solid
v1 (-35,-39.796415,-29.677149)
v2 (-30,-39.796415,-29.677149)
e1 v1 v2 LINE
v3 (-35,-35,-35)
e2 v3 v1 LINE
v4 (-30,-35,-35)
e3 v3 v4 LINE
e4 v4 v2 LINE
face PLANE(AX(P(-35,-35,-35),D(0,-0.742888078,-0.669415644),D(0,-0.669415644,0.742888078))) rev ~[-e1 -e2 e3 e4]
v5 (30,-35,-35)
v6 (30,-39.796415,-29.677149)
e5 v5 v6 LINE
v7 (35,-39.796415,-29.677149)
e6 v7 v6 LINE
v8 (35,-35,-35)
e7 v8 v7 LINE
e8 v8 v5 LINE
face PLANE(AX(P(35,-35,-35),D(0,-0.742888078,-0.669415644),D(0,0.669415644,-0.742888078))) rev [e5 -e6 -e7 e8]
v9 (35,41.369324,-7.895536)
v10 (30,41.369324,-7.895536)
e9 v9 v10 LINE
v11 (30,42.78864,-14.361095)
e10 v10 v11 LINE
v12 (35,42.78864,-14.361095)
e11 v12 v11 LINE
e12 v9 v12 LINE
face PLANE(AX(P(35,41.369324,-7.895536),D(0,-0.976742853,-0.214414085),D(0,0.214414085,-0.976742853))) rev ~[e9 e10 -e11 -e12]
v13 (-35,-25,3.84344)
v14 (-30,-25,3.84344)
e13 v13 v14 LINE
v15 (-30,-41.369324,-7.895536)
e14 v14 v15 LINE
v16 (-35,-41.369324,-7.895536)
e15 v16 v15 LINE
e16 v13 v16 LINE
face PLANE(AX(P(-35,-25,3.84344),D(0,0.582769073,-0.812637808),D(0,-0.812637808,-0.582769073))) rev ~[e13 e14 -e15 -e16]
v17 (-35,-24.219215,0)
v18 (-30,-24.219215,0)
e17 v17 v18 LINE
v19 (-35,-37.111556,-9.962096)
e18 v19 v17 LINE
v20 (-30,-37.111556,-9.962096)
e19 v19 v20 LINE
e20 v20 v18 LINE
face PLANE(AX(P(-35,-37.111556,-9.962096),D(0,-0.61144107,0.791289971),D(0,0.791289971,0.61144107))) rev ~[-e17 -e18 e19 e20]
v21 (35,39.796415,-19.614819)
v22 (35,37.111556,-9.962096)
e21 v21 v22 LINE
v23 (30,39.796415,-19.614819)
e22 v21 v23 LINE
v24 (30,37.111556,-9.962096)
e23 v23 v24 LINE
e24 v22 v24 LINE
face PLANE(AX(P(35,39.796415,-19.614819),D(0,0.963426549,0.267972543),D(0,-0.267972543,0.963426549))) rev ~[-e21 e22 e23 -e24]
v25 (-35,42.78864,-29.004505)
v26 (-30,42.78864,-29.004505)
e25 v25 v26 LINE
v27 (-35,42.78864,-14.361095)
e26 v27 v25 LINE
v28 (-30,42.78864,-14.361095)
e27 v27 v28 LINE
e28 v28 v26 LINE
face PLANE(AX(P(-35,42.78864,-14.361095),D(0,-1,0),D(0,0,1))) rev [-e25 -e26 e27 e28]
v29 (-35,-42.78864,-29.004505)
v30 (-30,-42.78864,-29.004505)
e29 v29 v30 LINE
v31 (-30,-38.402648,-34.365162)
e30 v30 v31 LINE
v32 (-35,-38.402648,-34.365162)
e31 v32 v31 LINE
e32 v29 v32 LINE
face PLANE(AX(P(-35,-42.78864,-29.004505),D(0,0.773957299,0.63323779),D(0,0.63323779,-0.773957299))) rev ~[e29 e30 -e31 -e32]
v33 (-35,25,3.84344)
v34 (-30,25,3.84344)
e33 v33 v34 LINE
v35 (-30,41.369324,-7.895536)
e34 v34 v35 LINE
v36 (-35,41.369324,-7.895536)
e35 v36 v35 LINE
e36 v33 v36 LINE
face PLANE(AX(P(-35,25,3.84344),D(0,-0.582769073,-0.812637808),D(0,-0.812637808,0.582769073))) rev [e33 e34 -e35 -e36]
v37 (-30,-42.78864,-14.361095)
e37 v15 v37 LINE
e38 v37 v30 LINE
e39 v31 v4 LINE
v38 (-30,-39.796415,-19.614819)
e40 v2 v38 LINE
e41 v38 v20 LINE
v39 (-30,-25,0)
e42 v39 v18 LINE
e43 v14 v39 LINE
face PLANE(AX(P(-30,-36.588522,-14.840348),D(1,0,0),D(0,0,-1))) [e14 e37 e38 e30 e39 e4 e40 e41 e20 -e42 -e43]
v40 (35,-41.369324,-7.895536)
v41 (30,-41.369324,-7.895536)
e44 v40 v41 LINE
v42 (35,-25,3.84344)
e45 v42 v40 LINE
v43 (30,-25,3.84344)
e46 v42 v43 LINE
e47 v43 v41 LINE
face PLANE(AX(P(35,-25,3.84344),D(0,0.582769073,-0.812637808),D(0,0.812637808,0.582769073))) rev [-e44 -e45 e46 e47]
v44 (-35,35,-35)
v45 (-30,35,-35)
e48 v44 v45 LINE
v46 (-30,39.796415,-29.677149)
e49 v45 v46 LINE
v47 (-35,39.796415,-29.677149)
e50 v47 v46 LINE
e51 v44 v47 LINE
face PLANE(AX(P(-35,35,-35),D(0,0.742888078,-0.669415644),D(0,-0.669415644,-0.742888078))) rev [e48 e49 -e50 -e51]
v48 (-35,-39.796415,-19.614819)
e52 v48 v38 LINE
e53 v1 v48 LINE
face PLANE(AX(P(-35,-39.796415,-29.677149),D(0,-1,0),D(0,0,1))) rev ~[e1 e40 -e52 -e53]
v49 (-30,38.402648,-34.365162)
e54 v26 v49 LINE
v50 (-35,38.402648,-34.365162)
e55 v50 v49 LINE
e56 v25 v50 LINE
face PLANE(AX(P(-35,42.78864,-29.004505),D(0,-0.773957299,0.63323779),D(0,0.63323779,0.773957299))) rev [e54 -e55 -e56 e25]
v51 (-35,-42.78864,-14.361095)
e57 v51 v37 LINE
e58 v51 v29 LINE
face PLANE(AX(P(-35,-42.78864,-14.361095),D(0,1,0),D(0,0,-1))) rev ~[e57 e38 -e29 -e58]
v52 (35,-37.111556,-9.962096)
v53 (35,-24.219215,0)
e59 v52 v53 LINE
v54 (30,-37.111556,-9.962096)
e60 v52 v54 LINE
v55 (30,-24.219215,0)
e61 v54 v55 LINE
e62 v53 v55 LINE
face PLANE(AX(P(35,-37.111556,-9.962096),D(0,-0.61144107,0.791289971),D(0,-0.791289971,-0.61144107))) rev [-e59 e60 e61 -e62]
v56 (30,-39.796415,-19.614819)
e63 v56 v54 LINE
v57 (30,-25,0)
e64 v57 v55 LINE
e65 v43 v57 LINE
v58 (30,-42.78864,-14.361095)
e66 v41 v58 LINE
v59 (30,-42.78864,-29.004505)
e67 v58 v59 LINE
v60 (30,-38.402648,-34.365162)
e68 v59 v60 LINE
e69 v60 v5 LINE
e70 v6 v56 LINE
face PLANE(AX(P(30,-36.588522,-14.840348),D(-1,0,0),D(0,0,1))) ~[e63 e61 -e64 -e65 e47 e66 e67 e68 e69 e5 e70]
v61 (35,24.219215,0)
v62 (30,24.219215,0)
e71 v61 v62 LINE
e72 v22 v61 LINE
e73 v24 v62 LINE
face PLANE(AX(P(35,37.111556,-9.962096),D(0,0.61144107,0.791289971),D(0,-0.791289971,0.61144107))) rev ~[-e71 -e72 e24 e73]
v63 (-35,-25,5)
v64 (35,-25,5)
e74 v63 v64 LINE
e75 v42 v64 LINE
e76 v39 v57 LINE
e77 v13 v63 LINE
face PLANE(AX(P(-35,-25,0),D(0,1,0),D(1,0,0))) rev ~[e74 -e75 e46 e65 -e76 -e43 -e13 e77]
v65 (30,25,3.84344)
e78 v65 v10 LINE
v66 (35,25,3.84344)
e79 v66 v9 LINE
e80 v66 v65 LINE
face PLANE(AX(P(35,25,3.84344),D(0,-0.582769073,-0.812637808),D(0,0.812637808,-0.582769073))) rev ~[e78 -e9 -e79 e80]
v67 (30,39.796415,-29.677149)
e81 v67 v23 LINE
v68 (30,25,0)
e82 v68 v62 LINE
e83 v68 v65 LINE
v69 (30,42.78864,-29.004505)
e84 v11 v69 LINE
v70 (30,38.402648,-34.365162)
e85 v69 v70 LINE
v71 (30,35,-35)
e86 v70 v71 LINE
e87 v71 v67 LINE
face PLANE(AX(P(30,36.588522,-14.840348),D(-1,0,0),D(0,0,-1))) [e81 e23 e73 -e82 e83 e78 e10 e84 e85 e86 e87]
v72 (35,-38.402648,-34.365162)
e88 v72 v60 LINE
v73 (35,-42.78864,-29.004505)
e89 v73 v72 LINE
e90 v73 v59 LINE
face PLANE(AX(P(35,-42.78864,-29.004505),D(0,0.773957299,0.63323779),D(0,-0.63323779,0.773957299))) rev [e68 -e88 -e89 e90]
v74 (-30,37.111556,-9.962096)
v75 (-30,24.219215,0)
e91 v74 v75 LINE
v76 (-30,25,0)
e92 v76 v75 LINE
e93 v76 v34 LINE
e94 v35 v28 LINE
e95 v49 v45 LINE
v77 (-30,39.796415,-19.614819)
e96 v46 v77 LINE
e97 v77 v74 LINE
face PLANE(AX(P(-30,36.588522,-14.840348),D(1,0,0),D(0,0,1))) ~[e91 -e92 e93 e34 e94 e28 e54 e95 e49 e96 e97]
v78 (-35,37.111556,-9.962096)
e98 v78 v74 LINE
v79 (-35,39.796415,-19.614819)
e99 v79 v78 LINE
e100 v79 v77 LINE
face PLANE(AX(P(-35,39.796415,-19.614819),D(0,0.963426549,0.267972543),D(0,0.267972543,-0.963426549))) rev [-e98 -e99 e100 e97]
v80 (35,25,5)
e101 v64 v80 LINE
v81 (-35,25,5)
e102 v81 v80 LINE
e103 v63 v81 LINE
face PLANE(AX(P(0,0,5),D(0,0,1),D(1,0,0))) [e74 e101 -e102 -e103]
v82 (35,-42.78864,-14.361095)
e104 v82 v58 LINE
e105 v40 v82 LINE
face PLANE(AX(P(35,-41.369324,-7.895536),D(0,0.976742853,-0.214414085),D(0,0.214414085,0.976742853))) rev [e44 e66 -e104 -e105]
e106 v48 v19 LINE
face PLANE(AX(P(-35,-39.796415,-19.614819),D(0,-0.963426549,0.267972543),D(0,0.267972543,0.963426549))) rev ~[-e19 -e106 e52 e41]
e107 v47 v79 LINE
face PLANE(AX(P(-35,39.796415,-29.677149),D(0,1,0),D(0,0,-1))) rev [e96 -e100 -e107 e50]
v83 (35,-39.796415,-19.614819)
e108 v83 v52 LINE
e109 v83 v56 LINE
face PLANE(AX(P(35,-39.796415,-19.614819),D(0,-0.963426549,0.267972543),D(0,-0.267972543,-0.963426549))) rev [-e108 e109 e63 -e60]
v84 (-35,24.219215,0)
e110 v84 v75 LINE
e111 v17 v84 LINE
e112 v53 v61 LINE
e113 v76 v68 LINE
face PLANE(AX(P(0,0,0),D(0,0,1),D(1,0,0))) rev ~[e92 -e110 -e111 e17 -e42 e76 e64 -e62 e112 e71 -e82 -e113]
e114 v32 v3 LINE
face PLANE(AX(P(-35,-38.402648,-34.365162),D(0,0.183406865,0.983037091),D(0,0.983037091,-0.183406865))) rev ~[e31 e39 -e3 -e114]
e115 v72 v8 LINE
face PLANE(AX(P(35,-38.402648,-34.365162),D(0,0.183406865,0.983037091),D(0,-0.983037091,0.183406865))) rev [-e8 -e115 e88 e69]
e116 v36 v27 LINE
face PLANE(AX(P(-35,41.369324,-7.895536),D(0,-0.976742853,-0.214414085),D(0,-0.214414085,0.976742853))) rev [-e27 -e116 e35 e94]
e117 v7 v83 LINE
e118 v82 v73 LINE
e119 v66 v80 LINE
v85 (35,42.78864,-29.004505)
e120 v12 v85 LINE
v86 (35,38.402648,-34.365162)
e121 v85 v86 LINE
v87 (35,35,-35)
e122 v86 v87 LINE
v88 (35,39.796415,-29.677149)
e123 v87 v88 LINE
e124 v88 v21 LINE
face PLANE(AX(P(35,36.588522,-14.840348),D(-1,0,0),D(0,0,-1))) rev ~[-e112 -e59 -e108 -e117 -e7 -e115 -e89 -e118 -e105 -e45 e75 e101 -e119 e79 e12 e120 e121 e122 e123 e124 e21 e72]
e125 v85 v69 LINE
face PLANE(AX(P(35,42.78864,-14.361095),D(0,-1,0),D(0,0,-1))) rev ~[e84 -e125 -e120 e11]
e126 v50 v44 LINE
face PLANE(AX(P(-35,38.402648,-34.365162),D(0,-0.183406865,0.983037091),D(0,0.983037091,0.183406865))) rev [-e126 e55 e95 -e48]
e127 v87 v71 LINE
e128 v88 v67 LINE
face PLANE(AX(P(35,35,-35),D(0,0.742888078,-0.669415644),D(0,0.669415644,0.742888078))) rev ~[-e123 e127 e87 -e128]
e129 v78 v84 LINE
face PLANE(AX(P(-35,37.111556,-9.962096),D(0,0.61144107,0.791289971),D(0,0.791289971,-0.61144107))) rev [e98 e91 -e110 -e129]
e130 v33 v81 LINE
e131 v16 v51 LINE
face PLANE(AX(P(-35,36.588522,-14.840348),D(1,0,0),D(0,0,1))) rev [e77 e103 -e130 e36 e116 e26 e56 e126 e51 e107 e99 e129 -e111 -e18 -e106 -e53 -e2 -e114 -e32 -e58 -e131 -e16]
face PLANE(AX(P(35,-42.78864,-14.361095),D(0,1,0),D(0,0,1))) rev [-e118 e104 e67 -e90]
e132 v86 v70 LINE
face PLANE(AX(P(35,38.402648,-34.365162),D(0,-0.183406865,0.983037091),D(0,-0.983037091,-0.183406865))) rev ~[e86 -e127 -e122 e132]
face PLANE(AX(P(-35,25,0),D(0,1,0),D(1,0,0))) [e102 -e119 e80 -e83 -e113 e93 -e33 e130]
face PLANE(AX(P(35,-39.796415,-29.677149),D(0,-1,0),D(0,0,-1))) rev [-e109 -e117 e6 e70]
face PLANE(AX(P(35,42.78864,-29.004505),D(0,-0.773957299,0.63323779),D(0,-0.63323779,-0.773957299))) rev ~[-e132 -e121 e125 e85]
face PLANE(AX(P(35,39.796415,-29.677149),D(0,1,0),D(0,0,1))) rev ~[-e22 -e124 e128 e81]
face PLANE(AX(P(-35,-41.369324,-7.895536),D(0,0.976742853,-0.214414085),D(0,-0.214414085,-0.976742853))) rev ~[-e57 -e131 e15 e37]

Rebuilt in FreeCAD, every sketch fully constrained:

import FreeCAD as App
import Part
import Sketcher

V = App.Vector
Q = App.Units.Quantity


def add_polygon(sketch, points):
    """Adds a closed chain of lines whose ends are joined by coincident constraints."""
    first, n = sketch.GeometryCount, len(points)
    for a, b in zip(points, points[1:] + points[:1]):
        sketch.addGeometry(Part.LineSegment(App.Vector(*a, 0), App.Vector(*b, 0)), False)
    for i in range(n):
        sketch.addConstraint(Sketcher.Constraint("Coincident", first + i, 2, first + (i + 1) % n, 1))

doc = App.newDocument("Part")
body = doc.addObject("PartDesign::Body", "Body")

sketch1 = body.newObject("Sketcher::SketchObject", "Sketch")
sketch1.AttachmentSupport = (doc.getObject("XY_Plane"), [""])
sketch1.MapMode = "FlatFace"
add_polygon(sketch1, [(-35, 25), (-35, -25), (35, -25), (35, 25)])
sketch1.addConstraint([
    Sketcher.Constraint("Vertical", 0),
    Sketcher.Constraint("Horizontal", 1),
    Sketcher.Constraint("Vertical", 2),
    Sketcher.Constraint("Horizontal", 3),
    Sketcher.Constraint("Symmetric", 0, 2, 2, 2, -1, 1),
    Sketcher.Constraint("DistanceX", 1, 1, 1, 2, Q("70 mm")),
    Sketcher.Constraint("DistanceY", 0, 2, 0, 1, Q("50 mm")),
])
pad1 = body.newObject("PartDesign::Pad", "Pad")
pad1.Profile = sketch1
pad1.Length = 5

sketch2 = body.newObject("Sketcher::SketchObject", "Sketch001")
sketch2.AttachmentSupport = (doc.getObject("YZ_Plane"), [""])
sketch2.MapMode = "FlatFace"
sketch2.AttachmentOffset = App.Placement(V(0, 0, -35), App.Rotation())
add_polygon(sketch2, [(-41.4, -7.9), (-25, 3.8), (-24.2, 0), (-37.1, -10), (-39.8, -19.6), (-39.8, -29.7), (-35, -35), (-38.4, -34.4), (-42.8, -29), (-42.8, -14.4)])
sketch2.addConstraint([
    Sketcher.Constraint("Vertical", 4),
    Sketcher.Constraint("Vertical", 8),
    Sketcher.Constraint("PointOnObject", 1, 2, -1),
    Sketcher.Constraint("DistanceX", 0, 2, -1, 1, Q("25 mm")),
    Sketcher.Constraint("DistanceX", 5, 2, -1, 1, Q("35 mm")),
    Sketcher.Constraint("DistanceY", 5, 2, -1, 1, Q("35 mm")),
    Sketcher.Constraint("DistanceY", 8, 2, 2, 2, Q("4.398999 mm")),
    Sketcher.Constraint("DistanceY", 4, 2, 4, 1, Q("10.06233 mm")),
    Sketcher.Constraint("DistanceY", 8, 1, 8, 2, Q("14.64341 mm")),
    Sketcher.Constraint("DistanceX", 3, 2, 1, 2, Q("15.5772 mm")),
    Sketcher.Constraint("Distance", 3, Q("10.019158 mm")),
    Sketcher.Constraint("Distance", 9, Q("6.61951 mm")),
    Sketcher.Constraint("DistanceY", -1, 1, 0, 2, Q("3.84344 mm")),
    Sketcher.Constraint("DistanceY", 3, 2, -1, 1, Q("19.614819 mm")),
    Sketcher.Constraint("DistanceX", 6, 2, -1, 1, Q("38.402648 mm")),
    Sketcher.Constraint("DistanceX", 7, 2, -1, 1, Q("42.78864 mm")),
    Sketcher.Constraint("DistanceX", 2, 2, 1, 2, Q("12.89234 mm")),
    Sketcher.Constraint("DistanceX", 9, 2, 2, 2, Q("4.257769 mm")),
    Sketcher.Constraint("DistanceY", 2, 2, 9, 2, Q("2.06656 mm")),
    Sketcher.Constraint("Distance", 6, Q("3.461363 mm")),
])
pad2 = body.newObject("PartDesign::Pad", "Pad001")
pad2.Profile = sketch2
pad2.Length = 5
doc.recompute()

mirrored = body.newObject("PartDesign::Mirrored", "Mirrored")
mirrored.Originals = [pad2]
mirrored.MirrorPlane = (doc.getObject("XZ_Plane"), [""])
body.Tip = mirrored
doc.recompute()

mirrored2 = body.newObject("PartDesign::Mirrored", "Mirrored001")
mirrored2.Originals = [pad2]
mirrored2.MirrorPlane = (doc.getObject("YZ_Plane"), [""])
body.Tip = mirrored2

sketch3 = body.newObject("Sketcher::SketchObject", "Sketch002")
sketch3.AttachmentSupport = (doc.getObject("YZ_Plane"), [""])
sketch3.MapMode = "FlatFace"
sketch3.AttachmentOffset = App.Placement(V(0, 0, 35), App.Rotation())
add_polygon(sketch3, [(41.4, -7.9), (25, 3.8), (24.2, 0), (37.1, -10), (39.8, -19.6), (39.8, -29.7), (35, -35), (38.4, -34.4), (42.8, -29), (42.8, -14.4)])
sketch3.addConstraint([
    Sketcher.Constraint("Vertical", 4),
    Sketcher.Constraint("Vertical", 8),
    Sketcher.Constraint("PointOnObject", 1, 2, -1),
    Sketcher.Constraint("DistanceX", -1, 1, 0, 2, Q("25 mm")),
    Sketcher.Constraint("DistanceX", -1, 1, 5, 2, Q("35 mm")),
    Sketcher.Constraint("DistanceY", 5, 2, -1, 1, Q("35 mm")),
    Sketcher.Constraint("DistanceY", 8, 2, 2, 2, Q("4.398999 mm")),
    Sketcher.Constraint("DistanceY", 4, 2, 4, 1, Q("10.06233 mm")),
    Sketcher.Constraint("DistanceY", 8, 1, 8, 2, Q("14.64341 mm")),
    Sketcher.Constraint("DistanceX", 1, 2, 3, 2, Q("15.5772 mm")),
    Sketcher.Constraint("Distance", 3, Q("10.019158 mm")),
    Sketcher.Constraint("Distance", 9, Q("6.61951 mm")),
    Sketcher.Constraint("DistanceY", -1, 1, 0, 2, Q("3.84344 mm")),
    Sketcher.Constraint("DistanceY", 3, 2, -1, 1, Q("19.614819 mm")),
    Sketcher.Constraint("DistanceX", -1, 1, 6, 2, Q("38.402648 mm")),
    Sketcher.Constraint("DistanceX", -1, 1, 7, 2, Q("42.78864 mm")),
    Sketcher.Constraint("DistanceX", 1, 2, 2, 2, Q("12.89234 mm")),
    Sketcher.Constraint("DistanceX", 2, 2, 9, 2, Q("4.257769 mm")),
    Sketcher.Constraint("DistanceY", 2, 2, 9, 2, Q("2.06656 mm")),
    Sketcher.Constraint("Distance", 6, Q("3.461363 mm")),
])
pad3 = body.newObject("PartDesign::Pad", "Pad002")
pad3.Profile = sketch3
pad3.Length = 5
pad3.Reversed = True

doc.recompute()
